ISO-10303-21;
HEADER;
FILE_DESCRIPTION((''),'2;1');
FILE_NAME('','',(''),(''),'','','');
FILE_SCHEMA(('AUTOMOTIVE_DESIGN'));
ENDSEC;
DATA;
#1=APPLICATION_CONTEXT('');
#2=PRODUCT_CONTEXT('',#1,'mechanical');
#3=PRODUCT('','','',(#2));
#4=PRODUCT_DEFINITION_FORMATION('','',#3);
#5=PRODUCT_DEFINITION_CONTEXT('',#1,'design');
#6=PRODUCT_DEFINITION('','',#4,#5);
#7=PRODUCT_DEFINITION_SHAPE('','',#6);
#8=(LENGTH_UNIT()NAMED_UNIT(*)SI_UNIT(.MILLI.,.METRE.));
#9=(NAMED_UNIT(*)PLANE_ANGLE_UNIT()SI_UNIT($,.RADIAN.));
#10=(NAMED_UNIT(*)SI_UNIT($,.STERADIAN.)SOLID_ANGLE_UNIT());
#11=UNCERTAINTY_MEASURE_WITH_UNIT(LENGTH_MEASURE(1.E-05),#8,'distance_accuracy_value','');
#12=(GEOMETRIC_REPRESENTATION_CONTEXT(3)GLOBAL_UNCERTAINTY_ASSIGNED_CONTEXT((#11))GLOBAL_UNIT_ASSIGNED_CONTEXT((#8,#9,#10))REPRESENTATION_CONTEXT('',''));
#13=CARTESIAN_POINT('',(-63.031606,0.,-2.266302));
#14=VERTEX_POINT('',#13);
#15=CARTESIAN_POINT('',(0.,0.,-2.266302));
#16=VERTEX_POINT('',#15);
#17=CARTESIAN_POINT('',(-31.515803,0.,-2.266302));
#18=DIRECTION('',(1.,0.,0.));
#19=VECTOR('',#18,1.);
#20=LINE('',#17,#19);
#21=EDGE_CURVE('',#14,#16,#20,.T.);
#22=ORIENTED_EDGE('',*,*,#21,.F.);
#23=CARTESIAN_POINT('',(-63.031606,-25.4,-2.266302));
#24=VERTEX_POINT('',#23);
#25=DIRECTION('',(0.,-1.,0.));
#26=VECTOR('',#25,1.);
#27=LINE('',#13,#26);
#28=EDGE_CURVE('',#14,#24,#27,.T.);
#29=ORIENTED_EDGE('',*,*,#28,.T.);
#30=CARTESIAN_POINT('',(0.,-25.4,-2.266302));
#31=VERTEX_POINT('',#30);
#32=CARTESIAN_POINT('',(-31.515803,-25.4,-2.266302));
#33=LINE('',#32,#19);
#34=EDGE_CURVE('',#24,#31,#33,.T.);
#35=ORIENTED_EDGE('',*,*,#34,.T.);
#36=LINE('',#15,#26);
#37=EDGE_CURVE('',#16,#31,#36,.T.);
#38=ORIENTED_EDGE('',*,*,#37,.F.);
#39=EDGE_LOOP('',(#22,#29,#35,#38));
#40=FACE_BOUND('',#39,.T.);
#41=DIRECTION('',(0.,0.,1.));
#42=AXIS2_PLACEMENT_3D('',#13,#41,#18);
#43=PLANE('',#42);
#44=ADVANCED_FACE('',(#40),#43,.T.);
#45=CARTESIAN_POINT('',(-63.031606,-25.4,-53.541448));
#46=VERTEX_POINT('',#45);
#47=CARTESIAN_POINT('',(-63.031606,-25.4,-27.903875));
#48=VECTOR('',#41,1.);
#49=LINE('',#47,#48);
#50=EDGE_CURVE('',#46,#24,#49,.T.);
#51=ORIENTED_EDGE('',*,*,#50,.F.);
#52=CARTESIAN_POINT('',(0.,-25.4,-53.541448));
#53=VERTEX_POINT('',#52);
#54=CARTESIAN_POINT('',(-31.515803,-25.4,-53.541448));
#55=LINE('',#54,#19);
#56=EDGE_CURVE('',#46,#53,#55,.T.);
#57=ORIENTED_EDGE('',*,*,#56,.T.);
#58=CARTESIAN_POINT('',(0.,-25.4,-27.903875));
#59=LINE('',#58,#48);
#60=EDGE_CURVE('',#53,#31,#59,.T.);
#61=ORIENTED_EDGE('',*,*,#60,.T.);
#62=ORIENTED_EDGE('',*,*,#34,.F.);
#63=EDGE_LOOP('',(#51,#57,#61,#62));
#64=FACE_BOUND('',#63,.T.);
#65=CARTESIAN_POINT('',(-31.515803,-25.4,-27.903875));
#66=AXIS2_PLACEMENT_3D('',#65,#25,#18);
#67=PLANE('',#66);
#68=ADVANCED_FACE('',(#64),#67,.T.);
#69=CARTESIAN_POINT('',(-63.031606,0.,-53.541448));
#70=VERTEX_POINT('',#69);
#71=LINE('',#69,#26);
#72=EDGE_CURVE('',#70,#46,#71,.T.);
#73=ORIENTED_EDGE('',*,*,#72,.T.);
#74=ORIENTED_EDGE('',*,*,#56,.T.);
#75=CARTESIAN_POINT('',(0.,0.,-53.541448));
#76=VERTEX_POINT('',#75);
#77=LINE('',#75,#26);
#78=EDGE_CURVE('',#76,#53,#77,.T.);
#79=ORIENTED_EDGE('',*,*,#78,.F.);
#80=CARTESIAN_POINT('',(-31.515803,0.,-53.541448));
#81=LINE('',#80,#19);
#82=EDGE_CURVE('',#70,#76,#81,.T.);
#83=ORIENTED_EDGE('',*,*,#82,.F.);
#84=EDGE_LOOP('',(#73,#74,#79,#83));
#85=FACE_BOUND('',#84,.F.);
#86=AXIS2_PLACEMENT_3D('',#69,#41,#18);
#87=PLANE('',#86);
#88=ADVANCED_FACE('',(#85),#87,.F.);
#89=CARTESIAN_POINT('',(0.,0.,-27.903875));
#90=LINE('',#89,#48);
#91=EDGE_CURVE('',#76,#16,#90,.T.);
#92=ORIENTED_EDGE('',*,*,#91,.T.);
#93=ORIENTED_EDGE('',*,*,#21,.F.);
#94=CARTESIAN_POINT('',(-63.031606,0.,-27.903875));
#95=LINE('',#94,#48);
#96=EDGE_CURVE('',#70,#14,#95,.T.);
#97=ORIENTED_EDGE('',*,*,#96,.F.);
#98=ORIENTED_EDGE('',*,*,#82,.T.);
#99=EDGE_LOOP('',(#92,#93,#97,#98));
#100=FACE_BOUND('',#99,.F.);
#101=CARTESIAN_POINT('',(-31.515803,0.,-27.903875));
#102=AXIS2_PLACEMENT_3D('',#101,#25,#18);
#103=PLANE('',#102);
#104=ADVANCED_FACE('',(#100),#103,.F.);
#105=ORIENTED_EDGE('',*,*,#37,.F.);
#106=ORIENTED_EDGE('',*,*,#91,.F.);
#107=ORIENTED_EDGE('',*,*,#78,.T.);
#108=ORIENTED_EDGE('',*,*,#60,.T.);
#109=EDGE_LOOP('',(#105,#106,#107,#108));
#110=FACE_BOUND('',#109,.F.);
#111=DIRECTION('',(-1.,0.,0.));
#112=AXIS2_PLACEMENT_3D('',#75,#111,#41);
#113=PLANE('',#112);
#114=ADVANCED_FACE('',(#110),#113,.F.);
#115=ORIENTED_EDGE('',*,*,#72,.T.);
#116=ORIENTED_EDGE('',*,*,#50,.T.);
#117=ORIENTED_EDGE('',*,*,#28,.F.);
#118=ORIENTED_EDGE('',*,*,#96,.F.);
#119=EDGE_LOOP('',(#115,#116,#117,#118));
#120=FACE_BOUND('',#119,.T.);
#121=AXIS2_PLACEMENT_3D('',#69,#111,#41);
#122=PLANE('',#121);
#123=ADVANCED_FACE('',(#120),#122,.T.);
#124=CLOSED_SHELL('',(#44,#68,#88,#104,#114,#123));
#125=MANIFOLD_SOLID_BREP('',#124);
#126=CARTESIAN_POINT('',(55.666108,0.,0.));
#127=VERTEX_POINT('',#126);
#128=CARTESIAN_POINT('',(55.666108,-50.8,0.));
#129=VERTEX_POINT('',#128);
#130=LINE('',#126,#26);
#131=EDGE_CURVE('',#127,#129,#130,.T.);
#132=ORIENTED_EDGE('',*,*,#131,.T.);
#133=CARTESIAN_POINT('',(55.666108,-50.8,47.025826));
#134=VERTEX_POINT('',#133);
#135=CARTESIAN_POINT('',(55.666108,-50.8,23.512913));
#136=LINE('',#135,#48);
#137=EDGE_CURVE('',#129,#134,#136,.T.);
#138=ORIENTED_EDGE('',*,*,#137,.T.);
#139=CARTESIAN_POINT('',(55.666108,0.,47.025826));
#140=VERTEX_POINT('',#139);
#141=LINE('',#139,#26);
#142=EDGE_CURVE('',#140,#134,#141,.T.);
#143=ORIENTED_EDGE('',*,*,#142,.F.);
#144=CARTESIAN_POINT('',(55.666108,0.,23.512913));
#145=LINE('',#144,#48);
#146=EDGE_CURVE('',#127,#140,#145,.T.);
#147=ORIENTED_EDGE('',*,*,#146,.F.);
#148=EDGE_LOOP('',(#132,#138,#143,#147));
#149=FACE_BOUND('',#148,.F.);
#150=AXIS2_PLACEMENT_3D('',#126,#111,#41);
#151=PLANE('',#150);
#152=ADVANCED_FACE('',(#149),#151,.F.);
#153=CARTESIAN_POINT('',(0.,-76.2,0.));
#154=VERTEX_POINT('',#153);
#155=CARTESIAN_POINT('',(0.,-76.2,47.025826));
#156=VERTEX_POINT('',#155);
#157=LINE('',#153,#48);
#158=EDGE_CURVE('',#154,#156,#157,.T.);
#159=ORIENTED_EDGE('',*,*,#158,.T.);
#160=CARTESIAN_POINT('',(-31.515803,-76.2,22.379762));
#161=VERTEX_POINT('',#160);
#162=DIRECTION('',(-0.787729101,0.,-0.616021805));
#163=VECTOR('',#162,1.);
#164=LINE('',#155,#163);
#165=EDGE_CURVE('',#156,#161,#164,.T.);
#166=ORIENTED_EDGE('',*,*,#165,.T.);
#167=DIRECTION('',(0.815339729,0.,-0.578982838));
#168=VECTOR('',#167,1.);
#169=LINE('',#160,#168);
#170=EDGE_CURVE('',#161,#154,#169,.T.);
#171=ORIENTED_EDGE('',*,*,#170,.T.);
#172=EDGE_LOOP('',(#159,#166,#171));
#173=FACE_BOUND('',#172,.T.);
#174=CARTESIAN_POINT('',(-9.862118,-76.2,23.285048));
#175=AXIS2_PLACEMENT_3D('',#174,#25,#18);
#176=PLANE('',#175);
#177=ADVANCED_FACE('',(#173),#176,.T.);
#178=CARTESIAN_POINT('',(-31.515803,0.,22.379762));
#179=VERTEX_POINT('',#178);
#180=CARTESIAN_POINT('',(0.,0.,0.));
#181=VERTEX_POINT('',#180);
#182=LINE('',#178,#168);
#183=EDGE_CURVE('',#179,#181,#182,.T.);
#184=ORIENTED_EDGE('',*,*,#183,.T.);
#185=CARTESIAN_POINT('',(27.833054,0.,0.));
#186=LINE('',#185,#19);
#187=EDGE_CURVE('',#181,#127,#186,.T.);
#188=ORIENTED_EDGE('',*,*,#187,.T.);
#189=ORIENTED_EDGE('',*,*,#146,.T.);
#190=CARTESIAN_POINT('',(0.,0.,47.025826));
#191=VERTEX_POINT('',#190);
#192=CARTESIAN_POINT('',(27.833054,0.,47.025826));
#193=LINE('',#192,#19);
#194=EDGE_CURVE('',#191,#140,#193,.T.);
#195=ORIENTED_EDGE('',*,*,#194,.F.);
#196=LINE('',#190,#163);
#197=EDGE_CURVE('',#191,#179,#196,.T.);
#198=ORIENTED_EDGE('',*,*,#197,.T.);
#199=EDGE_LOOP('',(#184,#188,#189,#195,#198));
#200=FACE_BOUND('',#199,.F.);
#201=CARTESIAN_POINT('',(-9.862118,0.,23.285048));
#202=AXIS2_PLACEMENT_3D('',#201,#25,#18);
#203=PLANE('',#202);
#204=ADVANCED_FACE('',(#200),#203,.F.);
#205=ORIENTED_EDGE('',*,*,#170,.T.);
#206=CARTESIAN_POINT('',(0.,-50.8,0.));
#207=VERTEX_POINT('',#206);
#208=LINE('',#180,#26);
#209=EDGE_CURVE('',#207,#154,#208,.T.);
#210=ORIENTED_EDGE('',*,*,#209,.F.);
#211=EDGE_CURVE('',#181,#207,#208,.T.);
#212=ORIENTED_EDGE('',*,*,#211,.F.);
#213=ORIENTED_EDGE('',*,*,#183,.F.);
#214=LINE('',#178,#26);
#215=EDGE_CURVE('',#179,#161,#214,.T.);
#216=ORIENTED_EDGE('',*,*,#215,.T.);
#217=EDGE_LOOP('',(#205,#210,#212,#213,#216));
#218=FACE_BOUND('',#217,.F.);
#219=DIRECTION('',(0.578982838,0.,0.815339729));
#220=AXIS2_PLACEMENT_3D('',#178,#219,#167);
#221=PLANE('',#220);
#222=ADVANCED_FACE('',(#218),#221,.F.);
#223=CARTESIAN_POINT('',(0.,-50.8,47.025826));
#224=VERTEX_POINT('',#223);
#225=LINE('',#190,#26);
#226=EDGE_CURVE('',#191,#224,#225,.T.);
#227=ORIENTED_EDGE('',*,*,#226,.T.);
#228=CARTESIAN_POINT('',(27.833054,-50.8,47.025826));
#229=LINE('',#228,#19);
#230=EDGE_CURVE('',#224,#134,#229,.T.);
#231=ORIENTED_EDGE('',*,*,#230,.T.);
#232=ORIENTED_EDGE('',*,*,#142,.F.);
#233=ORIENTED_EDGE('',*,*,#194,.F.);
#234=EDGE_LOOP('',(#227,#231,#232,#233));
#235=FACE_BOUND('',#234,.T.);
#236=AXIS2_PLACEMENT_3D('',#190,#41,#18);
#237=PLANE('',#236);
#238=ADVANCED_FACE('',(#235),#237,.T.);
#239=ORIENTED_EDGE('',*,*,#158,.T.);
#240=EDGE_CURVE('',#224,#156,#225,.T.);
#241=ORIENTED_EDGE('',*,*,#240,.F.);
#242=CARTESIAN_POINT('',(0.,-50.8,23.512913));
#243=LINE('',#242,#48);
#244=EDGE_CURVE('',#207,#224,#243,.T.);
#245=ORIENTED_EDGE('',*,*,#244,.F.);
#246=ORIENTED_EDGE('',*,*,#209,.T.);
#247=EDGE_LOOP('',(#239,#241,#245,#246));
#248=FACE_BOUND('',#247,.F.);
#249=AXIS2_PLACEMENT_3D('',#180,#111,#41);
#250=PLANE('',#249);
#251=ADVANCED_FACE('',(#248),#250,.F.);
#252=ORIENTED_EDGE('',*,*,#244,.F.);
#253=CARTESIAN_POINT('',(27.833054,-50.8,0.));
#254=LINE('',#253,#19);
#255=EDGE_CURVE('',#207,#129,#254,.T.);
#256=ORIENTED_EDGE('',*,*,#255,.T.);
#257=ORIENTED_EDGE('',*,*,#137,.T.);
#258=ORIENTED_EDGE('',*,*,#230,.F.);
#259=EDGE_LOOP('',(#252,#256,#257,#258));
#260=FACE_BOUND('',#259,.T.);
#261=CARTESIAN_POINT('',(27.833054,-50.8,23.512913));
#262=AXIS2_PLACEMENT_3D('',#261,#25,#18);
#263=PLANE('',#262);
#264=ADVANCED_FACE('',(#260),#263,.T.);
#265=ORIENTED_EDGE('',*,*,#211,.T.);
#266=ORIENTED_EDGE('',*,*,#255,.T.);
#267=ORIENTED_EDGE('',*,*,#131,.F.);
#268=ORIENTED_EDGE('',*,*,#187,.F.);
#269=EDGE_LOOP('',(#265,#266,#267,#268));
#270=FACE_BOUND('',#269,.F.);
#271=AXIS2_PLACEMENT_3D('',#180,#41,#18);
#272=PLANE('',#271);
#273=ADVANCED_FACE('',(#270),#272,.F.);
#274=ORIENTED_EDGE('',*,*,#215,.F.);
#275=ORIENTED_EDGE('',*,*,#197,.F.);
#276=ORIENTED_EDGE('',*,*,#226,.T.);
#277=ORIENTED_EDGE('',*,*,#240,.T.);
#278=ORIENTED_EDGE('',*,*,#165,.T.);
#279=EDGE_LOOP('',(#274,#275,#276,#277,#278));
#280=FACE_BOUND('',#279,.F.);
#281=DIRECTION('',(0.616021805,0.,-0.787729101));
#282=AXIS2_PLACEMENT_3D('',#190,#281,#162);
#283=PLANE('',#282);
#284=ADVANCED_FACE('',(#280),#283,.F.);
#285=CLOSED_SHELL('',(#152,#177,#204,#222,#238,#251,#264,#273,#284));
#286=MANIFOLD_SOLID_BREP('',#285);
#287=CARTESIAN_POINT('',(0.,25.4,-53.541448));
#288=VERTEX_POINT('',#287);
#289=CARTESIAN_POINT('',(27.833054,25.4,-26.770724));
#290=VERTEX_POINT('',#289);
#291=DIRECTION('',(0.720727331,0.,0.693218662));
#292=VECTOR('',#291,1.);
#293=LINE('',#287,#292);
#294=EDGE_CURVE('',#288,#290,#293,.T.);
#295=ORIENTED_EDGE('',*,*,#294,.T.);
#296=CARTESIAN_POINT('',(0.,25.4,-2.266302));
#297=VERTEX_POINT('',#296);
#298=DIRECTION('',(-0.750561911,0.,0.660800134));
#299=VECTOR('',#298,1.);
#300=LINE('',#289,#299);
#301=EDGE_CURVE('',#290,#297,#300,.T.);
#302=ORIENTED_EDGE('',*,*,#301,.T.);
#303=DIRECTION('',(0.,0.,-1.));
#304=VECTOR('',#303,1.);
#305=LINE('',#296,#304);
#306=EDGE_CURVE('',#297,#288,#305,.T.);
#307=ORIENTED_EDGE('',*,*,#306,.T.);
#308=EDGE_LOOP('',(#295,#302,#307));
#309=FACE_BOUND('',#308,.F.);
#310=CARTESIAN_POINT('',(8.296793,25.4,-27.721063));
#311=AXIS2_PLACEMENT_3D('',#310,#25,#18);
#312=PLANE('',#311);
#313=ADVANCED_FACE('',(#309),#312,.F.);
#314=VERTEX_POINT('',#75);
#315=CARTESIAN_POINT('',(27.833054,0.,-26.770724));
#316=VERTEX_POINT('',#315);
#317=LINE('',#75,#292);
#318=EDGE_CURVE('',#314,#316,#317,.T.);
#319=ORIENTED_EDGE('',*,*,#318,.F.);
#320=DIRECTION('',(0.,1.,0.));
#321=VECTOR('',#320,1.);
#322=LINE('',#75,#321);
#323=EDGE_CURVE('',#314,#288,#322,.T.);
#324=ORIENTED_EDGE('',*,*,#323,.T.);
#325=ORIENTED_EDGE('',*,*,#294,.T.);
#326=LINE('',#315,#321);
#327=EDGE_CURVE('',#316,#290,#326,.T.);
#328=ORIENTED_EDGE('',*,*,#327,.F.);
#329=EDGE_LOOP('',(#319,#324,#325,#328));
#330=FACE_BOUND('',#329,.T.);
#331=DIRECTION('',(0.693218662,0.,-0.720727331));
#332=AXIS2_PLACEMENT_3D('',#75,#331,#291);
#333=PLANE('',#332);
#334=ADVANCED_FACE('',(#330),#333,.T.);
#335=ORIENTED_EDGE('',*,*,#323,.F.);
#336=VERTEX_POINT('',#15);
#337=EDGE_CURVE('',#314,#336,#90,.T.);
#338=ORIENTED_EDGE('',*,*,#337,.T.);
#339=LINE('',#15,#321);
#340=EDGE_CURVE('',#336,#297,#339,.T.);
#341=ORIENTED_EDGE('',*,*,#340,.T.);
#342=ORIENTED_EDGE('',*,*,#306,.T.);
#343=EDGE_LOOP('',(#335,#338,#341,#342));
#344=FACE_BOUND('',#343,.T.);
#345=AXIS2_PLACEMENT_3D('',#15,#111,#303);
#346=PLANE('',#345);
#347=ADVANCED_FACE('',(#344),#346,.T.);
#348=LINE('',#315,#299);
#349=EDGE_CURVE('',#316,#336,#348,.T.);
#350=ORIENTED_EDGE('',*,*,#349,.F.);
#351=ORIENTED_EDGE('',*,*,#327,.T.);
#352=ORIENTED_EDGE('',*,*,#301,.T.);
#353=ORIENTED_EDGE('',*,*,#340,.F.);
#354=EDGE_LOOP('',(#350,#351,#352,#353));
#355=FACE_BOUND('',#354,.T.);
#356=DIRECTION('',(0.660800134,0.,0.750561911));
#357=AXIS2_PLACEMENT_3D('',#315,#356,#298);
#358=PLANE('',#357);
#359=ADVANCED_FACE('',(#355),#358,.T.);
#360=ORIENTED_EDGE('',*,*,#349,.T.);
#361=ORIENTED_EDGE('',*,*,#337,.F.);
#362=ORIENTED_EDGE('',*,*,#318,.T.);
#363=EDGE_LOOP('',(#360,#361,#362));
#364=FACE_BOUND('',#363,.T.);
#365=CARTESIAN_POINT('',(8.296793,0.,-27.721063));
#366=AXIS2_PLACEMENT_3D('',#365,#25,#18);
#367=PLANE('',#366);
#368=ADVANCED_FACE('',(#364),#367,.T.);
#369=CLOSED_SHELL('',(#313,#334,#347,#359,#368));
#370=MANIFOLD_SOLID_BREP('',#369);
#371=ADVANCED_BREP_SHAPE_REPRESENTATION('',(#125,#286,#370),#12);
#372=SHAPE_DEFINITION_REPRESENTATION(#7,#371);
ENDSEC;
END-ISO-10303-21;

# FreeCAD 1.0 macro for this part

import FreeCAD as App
import Part
import Sketcher

V = App.Vector
Q = App.Units.Quantity


def add_polygon(sketch, points):
    """Adds a closed chain of lines whose ends are joined by coincident constraints."""
    first, n = sketch.GeometryCount, len(points)
    for a, b in zip(points, points[1:] + points[:1]):
        sketch.addGeometry(Part.LineSegment(App.Vector(*a, 0), App.Vector(*b, 0)), False)
    for i in range(n):
        sketch.addConstraint(Sketcher.Constraint("Coincident", first + i, 2, first + (i + 1) % n, 1))

doc = App.newDocument("Part")
body = doc.addObject("PartDesign::Body", "Body")
body.AllowCompound = True

sketch1 = body.newObject("Sketcher::SketchObject", "Sketch")
sketch1.AttachmentSupport = (doc.getObject("XZ_Plane"), [""])
sketch1.MapMode = "FlatFace"
add_polygon(sketch1, [(-63, -2), (-63, -54), (0, -54), (0, -2)])
sketch1.addConstraint([
    Sketcher.Constraint("Vertical", 0),
    Sketcher.Constraint("Horizontal", 1),
    Sketcher.Constraint("Vertical", 2),
    Sketcher.Constraint("Horizontal", 3),
    Sketcher.Constraint("PointOnObject", 1, 2, -2),
    Sketcher.Constraint("DistanceY", 2, 2, -1, 1, Q("2.266302 mm")),
    Sketcher.Constraint("DistanceX", 1, 1, 1, 2, Q("63.031606 mm")),
    Sketcher.Constraint("DistanceY", 0, 2, 0, 1, Q("51.275146 mm")),
])
pad1 = body.newObject("PartDesign::Pad", "Pad")
pad1.Profile = sketch1
pad1.Length = Q("1 in")

sketch2 = body.newObject("Sketcher::SketchObject", "Sketch001")
sketch2.AttachmentSupport = (doc.getObject("XZ_Plane"), [""])
sketch2.MapMode = "FlatFace"
add_polygon(sketch2, [(0, -54), (28, -27), (0, -2)])
sketch2.addConstraint([
    Sketcher.Constraint("Vertical", 2),
    Sketcher.Constraint("PointOnObject", 1, 2, -2),
    Sketcher.Constraint("DistanceY", 1, 2, -1, 1, Q("2.266302 mm")),
    Sketcher.Constraint("Distance", 0, Q("38.618008 mm")),
    Sketcher.Constraint("DistanceY", 2, 2, 2, 1, Q("51.275146 mm")),
    Sketcher.Constraint("Distance", 1, Q("37.082956 mm")),
])
pad2 = body.newObject("PartDesign::Pad", "Pad001")
pad2.Profile = sketch2
pad2.Length = Q("1 in")
pad2.Reversed = True
body2 = doc.addObject("PartDesign::Body", "Body001")

sketch3 = body2.newObject("Sketcher::SketchObject", "Sketch002")
sketch3.AttachmentSupport = (doc.getObject("XZ_Plane001"), [""])
sketch3.MapMode = "FlatFace"
add_polygon(sketch3, [(0, 47), (0, 0), (56, 0), (56, 47)])
sketch3.addConstraint([
    Sketcher.Constraint("Vertical", 0),
    Sketcher.Constraint("Horizontal", 1),
    Sketcher.Constraint("Vertical", 2),
    Sketcher.Constraint("Horizontal", 3),
    Sketcher.Constraint("Coincident", 0, 2, -1, 1),
    Sketcher.Constraint("DistanceX", 1, 1, 1, 2, Q("55.666108 mm")),
    Sketcher.Constraint("DistanceY", 0, 2, 0, 1, Q("47.025826 mm")),
])
pad3 = body2.newObject("PartDesign::Pad", "Pad002")
pad3.Profile = sketch3
pad3.Length = Q("2 in")

sketch4 = body2.newObject("Sketcher::SketchObject", "Sketch003")
sketch4.AttachmentSupport = (doc.getObject("XZ_Plane001"), [""])
sketch4.MapMode = "FlatFace"
add_polygon(sketch4, [(-32, 22), (0, 0), (0, 47)])
sketch4.addConstraint([
    Sketcher.Constraint("Vertical", 1),
    Sketcher.Constraint("Coincident", 0, 2, -1, 1),
    Sketcher.Constraint("DistanceY", 1, 1, 1, 2, Q("47.025826 mm")),
    Sketcher.Constraint("DistanceY", -1, 1, 2, 2, Q("22.379762 mm")),
    Sketcher.Constraint("Distance", 0, Q("38.653584 mm")),
])
pad4 = body2.newObject("PartDesign::Pad", "Pad003")
pad4.Profile = sketch4
pad4.Length = Q("3 in")

doc.recompute()
